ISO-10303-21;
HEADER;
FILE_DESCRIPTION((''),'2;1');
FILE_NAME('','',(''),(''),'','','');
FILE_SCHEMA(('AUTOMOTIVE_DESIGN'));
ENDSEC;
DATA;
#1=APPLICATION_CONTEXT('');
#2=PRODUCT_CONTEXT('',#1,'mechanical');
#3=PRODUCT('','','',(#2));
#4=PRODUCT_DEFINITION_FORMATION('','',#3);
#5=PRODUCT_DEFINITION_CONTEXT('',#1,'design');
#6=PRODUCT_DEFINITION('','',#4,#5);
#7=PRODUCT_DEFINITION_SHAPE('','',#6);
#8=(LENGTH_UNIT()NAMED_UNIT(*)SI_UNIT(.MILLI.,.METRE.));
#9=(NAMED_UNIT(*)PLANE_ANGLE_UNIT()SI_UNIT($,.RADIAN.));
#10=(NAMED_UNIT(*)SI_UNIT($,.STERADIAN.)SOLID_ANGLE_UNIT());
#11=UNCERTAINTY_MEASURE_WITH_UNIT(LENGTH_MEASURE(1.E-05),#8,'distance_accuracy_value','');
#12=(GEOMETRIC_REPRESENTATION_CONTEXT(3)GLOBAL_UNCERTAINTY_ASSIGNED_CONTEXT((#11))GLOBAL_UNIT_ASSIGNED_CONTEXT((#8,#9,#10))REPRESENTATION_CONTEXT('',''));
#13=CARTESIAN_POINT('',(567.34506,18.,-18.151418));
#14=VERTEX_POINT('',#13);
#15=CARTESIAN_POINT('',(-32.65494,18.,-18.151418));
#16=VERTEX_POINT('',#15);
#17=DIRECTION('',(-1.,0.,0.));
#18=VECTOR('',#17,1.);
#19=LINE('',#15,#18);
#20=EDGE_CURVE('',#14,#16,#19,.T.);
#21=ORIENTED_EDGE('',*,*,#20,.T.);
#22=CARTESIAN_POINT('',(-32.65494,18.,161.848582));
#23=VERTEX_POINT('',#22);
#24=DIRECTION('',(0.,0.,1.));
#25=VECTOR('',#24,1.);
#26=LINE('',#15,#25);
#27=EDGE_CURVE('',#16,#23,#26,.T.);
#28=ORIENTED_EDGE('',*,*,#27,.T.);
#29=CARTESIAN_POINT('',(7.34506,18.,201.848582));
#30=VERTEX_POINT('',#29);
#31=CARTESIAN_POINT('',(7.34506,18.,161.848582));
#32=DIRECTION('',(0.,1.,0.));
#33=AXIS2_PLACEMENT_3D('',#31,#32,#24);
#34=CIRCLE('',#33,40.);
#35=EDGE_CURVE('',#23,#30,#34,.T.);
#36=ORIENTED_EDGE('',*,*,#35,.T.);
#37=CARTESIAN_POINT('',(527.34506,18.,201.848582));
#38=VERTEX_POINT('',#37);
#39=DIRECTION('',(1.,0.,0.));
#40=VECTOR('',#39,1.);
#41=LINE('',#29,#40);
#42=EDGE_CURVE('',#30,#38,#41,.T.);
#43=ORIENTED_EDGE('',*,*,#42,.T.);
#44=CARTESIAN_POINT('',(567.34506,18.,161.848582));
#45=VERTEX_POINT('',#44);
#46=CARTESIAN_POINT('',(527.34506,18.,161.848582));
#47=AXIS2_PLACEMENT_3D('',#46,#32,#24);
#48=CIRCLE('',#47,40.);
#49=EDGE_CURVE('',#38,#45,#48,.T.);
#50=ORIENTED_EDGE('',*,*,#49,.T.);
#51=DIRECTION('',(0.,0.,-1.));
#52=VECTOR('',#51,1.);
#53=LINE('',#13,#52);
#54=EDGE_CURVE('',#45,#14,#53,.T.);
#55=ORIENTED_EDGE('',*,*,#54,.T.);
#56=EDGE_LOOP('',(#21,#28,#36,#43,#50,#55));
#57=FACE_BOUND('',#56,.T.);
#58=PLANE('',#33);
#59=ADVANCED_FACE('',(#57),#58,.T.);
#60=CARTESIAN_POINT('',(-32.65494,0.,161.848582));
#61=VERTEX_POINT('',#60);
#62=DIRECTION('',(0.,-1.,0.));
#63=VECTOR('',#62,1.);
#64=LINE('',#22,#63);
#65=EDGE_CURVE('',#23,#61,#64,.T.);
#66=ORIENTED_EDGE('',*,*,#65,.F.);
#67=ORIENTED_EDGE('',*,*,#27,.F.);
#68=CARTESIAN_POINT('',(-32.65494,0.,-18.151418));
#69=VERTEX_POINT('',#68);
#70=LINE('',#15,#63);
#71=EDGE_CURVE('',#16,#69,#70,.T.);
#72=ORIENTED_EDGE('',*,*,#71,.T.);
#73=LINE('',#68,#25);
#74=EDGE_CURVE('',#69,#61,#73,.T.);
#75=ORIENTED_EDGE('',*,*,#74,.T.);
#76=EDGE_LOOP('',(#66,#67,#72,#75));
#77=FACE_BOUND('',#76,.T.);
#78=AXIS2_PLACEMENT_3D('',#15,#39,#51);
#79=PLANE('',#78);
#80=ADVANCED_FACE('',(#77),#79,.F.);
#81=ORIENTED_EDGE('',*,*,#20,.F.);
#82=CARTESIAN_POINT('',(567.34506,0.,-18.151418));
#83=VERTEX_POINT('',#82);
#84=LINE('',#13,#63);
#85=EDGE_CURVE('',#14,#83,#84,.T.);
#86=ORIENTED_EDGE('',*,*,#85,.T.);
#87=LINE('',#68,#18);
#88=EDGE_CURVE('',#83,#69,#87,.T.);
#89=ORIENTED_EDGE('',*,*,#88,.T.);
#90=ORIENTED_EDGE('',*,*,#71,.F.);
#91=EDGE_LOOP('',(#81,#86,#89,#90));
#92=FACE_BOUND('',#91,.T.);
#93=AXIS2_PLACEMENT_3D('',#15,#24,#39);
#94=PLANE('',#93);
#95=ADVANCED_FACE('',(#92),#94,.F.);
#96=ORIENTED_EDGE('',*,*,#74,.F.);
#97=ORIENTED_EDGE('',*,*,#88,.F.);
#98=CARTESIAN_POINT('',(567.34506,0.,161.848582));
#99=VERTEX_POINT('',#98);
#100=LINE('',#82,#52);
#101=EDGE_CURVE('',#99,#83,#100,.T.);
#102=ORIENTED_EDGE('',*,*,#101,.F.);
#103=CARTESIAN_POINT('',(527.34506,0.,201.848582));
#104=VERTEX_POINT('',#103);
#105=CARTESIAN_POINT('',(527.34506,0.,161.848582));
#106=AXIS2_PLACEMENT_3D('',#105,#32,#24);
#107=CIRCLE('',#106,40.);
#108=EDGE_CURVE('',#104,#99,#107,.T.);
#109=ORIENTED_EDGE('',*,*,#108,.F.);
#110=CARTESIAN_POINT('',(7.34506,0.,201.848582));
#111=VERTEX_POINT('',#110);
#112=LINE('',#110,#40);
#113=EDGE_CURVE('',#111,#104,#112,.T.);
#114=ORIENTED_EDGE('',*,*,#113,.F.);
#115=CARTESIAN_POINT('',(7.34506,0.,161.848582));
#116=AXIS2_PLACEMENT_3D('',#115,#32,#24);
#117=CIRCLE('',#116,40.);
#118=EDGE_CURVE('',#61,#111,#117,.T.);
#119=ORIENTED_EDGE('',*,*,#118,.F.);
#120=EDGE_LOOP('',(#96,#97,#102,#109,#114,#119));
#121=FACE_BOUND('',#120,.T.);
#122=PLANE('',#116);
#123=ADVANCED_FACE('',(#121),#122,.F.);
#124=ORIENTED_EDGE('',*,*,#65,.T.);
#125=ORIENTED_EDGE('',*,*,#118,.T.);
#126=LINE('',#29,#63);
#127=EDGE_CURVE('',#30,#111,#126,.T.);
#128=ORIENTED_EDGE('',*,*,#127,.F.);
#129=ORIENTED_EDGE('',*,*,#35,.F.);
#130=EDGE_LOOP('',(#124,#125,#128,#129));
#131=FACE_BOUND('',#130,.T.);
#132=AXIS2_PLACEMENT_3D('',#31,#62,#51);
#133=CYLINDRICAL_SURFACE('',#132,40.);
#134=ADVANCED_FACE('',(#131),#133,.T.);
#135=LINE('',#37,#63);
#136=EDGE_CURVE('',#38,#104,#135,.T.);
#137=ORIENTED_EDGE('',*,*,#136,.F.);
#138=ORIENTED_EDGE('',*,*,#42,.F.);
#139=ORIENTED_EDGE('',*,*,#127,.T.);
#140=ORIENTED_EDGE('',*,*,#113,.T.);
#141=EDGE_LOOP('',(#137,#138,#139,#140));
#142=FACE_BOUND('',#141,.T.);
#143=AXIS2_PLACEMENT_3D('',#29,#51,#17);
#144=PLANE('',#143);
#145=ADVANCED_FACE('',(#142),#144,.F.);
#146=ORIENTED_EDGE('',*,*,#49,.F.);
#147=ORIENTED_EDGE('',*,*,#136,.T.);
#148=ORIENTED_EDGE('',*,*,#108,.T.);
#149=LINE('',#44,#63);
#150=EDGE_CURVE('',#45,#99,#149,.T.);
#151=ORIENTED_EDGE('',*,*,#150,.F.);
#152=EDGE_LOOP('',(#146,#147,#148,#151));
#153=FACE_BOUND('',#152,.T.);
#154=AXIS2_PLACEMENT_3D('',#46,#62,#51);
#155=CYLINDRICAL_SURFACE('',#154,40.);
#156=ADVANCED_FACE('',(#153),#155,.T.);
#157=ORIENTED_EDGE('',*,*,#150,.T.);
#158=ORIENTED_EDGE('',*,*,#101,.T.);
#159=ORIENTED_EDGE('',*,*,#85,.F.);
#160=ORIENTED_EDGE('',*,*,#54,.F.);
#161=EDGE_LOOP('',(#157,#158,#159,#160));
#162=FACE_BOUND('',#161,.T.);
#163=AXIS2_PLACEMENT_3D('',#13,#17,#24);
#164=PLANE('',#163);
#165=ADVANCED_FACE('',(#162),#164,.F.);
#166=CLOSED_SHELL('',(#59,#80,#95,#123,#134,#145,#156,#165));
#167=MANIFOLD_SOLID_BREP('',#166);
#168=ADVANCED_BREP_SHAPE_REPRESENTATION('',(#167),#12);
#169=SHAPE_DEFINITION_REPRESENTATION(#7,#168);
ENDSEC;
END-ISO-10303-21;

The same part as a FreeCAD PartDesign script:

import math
import FreeCAD as App
import Part
import Sketcher

V = App.Vector
Q = App.Units.Quantity

doc = App.newDocument("Part")
params = doc.addObject("Spreadsheet::Sheet", "Params")
for row, (alias, value) in enumerate([
    ("sketch1_radius", "40 mm"),
    ("sketch1_width", "600 mm"),
    ("sketch1_height", "180 mm"),
    ("pad1_length", "18 mm"),
], start=1):
    params.set(f"A{row}", alias)
    params.set(f"B{row}", "=" + value)
    params.setAlias(f"B{row}", alias)

body = doc.addObject("PartDesign::Body", "Body")

# Sketch on XZ plane
sketch1 = body.newObject("Sketcher::SketchObject", "Sketch")
sketch1.AttachmentSupport = (doc.getObject("XZ_Plane"), [""])
sketch1.MapMode = "FlatFace"
sketch1.addGeometry([
    Part.LineSegment(V(567.34506, -18.151418, 0), V(-32.65494, -18.151418, 0)),  # 0
    Part.LineSegment(V(-32.65494, -18.151418, 0), V(-32.65494, 161.848582, 0)),  # 1
    Part.ArcOfCircle(Part.Circle(V(7.34506, 161.848582, 0), V(0, 0, 1), 40), math.radians(90), math.radians(180)),  # 2
    Part.LineSegment(V(7.34506, 201.848582, 0), V(527.34506, 201.848582, 0)),  # 3
    Part.ArcOfCircle(Part.Circle(V(527.34506, 161.848582, 0), V(0, 0, 1), 40), math.radians(0), math.radians(90)),  # 4
    Part.LineSegment(V(567.34506, 161.848582, 0), V(567.34506, -18.151418, 0)),  # 5
], False)
sketch1.addConstraint([
    Sketcher.Constraint("Coincident", 0, 2, 1, 1),
    Sketcher.Constraint("Tangent", 1, 2, 2, 2),
    Sketcher.Constraint("Tangent", 2, 1, 3, 1),
    Sketcher.Constraint("Tangent", 3, 2, 4, 2),
    Sketcher.Constraint("Tangent", 4, 1, 5, 1),
    Sketcher.Constraint("Coincident", 5, 2, 0, 1),
    Sketcher.Constraint("Horizontal", 0),
    Sketcher.Constraint("Vertical", 1),
    Sketcher.Constraint("Horizontal", 3),
    Sketcher.Constraint("Vertical", 5),
    Sketcher.Constraint("Equal", 2, 4),
    Sketcher.Constraint("Radius", 2, Q("40 mm")),
    Sketcher.Constraint("DistanceX", 0, 2, 0, 1, Q("600 mm")),
    Sketcher.Constraint("DistanceY", 1, 1, 1, 2, Q("180 mm")),
    Sketcher.Constraint("DistanceX", -1, 1, 2, 3, Q("7.34506 mm")),
    Sketcher.Constraint("DistanceY", -1, 1, 2, 3, Q("161.848582 mm")),
])
sketch1.setExpression("Constraints[11]", "Params.sketch1_radius")
sketch1.setExpression("Constraints[12]", "Params.sketch1_width")
sketch1.setExpression("Constraints[13]", "Params.sketch1_height")
pad1 = body.newObject("PartDesign::Pad", "Pad")
pad1.Profile = sketch1
pad1.setExpression("Length", "Params.pad1_length")
pad1.Reversed = True

doc.recompute()
